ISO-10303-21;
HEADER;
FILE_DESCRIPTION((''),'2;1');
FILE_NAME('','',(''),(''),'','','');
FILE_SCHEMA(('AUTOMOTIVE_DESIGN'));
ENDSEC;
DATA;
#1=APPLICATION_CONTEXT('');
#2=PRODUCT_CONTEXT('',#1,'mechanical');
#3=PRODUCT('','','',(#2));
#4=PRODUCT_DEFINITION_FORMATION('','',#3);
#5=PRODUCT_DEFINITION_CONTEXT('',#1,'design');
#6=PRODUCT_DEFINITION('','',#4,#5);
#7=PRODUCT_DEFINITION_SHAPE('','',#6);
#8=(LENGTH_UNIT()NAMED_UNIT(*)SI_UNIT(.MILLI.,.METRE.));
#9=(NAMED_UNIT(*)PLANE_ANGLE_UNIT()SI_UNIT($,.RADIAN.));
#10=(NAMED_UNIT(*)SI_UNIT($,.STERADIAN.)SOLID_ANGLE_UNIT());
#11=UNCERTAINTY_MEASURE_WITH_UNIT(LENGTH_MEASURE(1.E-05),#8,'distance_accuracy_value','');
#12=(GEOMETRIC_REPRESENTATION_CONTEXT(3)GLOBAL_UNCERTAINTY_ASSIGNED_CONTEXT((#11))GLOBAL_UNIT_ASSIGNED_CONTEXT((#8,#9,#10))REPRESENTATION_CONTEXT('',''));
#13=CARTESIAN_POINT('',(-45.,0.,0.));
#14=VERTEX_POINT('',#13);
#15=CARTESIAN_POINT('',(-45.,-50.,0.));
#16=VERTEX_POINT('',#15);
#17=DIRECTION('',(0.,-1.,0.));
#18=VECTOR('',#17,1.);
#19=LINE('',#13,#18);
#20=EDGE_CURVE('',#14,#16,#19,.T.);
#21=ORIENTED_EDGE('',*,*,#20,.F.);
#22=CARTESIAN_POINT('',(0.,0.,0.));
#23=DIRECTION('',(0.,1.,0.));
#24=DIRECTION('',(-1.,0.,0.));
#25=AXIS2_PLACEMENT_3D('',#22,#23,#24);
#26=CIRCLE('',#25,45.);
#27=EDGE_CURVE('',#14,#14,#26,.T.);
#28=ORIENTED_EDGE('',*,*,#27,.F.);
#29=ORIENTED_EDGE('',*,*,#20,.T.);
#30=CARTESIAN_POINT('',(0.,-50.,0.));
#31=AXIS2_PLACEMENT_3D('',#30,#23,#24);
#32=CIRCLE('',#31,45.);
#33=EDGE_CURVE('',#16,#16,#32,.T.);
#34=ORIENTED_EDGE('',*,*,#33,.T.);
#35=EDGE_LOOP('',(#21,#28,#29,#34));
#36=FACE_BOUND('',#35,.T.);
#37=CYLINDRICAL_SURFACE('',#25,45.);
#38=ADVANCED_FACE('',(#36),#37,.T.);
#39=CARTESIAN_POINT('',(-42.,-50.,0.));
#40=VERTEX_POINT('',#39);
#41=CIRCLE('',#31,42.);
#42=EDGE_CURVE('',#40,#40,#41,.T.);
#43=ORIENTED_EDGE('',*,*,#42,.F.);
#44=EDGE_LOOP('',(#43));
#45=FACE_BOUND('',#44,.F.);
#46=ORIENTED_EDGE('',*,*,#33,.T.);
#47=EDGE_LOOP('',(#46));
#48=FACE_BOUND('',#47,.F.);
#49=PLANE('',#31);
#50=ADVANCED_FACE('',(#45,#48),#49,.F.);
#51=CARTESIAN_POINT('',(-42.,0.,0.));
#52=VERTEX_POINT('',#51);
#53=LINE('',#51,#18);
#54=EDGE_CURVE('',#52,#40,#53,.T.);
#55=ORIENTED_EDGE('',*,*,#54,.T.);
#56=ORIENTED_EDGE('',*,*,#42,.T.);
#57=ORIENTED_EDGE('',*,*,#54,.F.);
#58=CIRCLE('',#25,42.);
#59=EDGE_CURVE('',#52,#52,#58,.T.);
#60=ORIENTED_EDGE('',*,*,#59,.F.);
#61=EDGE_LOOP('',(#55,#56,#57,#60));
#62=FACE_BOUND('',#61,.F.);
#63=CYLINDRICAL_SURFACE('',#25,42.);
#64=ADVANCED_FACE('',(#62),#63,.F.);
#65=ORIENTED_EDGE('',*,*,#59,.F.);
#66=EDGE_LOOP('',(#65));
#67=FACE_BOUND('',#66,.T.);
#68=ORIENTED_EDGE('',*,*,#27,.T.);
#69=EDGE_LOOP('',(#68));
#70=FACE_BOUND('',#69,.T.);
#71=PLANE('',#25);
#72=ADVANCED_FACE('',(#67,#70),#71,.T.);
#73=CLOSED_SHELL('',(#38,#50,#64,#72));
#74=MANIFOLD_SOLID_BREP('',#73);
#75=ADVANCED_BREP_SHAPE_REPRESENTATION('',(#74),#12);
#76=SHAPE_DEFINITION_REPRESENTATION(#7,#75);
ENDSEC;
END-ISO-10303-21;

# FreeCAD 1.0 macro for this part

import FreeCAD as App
import Part
import Sketcher

doc = App.newDocument("Part")
params = doc.addObject("Spreadsheet::Sheet", "Params")
for row, (alias, value) in enumerate([
    ("sketch1_diameter", "90 mm"),
    ("sketch1_diameter2", "84 mm"),
    ("pad1_length", "50 mm"),
], start=1):
    params.set(f"A{row}", alias)
    params.set(f"B{row}", "=" + value)
    params.setAlias(f"B{row}", alias)

body = doc.addObject("PartDesign::Body", "Body")

# Sketch on XZ plane
sketch1 = body.newObject("Sketcher::SketchObject", "Sketch")
sketch1.AttachmentSupport = (doc.getObject("XZ_Plane"), [""])
sketch1.MapMode = "FlatFace"
sketch1.addGeometry(Part.Circle(App.Vector(0, 0, 0), App.Vector(0, 0, 1), 45), False)
sketch1.addGeometry(Part.Circle(App.Vector(0, 0, 0), App.Vector(0, 0, 1), 42), False)
sketch1.addConstraint(Sketcher.Constraint("Coincident", 0, 3, -1, 1))
sketch1.addConstraint(Sketcher.Constraint("Coincident", 1, 3, -1, 1))
sketch1.addConstraint(Sketcher.Constraint("Diameter", 0, 90.0))
sketch1.addConstraint(Sketcher.Constraint("Diameter", 1, 84.0))
sketch1.setExpression("Constraints[2]", "Params.sketch1_diameter")
sketch1.setExpression("Constraints[3]", "Params.sketch1_diameter2")
pad1 = body.newObject("PartDesign::Pad", "Pad")
pad1.Profile = sketch1
pad1.setExpression("Length", "Params.pad1_length")

doc.recompute()
